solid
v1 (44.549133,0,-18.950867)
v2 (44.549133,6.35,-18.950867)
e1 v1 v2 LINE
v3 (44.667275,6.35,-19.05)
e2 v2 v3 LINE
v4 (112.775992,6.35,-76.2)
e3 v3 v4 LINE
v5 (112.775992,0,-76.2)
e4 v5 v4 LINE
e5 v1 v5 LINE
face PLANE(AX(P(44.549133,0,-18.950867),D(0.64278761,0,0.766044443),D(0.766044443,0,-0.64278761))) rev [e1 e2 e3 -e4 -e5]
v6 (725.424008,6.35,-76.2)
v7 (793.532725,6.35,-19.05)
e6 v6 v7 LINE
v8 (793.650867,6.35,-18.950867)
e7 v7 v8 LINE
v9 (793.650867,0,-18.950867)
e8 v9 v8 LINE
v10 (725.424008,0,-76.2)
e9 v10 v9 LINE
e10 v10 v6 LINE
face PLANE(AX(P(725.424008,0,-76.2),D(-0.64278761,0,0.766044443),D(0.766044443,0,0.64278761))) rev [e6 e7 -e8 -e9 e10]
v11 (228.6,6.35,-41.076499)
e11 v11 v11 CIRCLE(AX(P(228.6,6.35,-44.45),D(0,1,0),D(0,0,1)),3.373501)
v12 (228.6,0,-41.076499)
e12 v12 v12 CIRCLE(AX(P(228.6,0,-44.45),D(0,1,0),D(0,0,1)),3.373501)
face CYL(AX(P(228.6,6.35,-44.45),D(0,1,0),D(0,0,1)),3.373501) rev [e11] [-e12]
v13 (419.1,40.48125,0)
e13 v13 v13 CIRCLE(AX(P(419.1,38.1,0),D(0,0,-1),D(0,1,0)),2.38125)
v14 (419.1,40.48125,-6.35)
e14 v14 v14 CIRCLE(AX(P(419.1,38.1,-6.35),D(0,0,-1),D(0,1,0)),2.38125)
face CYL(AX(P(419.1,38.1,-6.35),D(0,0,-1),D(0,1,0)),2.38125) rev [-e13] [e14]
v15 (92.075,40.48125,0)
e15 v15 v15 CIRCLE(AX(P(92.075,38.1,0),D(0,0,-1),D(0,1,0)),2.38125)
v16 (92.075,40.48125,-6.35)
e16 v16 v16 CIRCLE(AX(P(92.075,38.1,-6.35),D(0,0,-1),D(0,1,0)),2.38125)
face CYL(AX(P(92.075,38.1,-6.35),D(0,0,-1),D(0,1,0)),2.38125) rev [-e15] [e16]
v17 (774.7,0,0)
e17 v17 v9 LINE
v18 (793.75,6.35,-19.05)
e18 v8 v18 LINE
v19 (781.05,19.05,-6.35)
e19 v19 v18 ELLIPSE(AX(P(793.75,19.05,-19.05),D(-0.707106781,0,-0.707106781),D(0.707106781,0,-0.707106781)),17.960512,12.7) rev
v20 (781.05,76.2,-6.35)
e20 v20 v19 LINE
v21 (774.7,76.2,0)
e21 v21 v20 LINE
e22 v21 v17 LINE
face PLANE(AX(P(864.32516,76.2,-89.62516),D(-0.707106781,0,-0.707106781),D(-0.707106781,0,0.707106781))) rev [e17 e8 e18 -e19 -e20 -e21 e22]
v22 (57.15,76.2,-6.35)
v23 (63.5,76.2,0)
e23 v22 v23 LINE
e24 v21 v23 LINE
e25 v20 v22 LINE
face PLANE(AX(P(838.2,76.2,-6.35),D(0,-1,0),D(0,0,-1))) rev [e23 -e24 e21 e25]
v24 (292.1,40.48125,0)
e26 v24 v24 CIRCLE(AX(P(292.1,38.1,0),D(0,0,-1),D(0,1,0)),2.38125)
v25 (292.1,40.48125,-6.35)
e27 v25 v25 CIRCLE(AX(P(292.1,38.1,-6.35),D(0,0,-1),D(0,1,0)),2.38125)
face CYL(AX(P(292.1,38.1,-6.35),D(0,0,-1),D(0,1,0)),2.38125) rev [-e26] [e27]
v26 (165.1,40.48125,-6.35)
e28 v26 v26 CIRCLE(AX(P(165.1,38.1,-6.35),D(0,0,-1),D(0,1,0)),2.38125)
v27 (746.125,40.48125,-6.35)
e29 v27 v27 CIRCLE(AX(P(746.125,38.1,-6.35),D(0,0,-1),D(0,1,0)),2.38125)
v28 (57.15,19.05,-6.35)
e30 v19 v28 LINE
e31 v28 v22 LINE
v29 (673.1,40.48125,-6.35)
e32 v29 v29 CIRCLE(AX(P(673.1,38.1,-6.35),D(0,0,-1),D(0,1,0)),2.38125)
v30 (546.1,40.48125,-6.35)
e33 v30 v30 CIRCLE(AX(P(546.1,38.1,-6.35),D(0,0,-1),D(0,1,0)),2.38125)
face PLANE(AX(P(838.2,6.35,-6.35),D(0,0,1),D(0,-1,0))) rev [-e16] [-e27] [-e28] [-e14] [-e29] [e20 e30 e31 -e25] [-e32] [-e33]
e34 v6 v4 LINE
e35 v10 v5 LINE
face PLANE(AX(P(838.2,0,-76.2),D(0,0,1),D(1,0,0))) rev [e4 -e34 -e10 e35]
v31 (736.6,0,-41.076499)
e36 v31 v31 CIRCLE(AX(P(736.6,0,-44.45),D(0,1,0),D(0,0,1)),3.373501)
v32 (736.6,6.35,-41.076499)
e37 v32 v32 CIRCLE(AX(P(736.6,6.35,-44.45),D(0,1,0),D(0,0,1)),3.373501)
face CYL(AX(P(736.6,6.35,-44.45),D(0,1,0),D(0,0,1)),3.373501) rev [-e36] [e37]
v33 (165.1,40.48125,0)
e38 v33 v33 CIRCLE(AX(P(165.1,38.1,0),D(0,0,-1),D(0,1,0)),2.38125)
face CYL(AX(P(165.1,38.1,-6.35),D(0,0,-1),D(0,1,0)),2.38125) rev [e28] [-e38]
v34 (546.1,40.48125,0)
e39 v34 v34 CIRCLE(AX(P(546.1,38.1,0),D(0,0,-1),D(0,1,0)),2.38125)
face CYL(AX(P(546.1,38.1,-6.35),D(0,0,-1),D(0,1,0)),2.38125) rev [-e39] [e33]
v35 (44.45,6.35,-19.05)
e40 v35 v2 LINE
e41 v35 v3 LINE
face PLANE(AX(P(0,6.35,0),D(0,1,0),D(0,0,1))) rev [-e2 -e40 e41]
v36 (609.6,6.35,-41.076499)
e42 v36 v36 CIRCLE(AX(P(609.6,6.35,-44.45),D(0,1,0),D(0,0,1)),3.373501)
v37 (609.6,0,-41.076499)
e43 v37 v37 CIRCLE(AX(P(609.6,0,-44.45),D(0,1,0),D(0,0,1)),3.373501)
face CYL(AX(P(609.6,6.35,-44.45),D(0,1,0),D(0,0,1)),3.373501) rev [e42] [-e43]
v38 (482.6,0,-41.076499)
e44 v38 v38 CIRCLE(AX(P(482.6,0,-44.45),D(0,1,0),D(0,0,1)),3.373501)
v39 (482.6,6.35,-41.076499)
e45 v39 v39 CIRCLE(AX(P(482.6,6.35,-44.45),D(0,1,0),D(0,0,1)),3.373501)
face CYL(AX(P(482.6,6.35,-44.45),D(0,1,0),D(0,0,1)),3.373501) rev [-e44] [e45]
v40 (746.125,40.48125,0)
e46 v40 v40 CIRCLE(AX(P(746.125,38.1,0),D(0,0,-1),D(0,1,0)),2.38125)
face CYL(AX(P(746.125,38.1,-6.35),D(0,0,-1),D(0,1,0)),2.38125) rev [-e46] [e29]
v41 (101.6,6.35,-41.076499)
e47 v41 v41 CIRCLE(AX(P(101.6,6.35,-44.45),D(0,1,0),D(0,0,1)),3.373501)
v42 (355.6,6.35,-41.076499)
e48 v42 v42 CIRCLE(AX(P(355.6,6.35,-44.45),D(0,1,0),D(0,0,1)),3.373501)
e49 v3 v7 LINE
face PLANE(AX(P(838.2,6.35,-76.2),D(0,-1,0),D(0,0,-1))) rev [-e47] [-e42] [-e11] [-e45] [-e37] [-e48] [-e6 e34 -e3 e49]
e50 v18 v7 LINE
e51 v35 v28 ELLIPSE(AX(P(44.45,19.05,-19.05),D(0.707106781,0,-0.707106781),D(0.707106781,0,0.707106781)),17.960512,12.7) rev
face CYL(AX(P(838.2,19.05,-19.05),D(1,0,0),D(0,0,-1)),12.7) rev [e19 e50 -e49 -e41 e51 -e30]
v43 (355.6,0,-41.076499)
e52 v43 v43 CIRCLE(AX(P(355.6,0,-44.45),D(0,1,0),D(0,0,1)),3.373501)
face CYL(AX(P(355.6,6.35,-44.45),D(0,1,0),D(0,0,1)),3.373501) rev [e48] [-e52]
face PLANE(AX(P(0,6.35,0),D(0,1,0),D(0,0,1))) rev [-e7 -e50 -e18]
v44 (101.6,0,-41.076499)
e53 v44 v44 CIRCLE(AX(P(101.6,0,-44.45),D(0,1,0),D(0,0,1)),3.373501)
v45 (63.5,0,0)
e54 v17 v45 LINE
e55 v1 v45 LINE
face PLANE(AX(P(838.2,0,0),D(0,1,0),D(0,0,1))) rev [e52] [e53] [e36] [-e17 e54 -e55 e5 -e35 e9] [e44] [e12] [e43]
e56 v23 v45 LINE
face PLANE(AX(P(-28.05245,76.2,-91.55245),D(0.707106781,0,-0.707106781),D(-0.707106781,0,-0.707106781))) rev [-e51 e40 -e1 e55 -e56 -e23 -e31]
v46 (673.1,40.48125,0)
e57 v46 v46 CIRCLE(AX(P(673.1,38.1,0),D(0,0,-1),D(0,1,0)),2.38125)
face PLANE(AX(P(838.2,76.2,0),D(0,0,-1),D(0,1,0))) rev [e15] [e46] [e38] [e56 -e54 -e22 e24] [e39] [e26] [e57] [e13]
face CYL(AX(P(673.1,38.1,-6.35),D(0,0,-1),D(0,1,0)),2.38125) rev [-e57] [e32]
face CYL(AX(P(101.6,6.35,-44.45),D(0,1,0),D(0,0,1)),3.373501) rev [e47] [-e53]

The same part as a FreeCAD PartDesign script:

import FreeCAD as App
import Part
import Sketcher
from FreeCAD import Vector
Q = App.Units.Quantity


def edges_at(feature, points):
    """Names of the edges that pass closest to the given points."""
    edges = feature.Shape.Edges
    near = lambda p: min(range(len(edges)), key=lambda i: edges[i].distToShape(Part.Vertex(*p))[0])
    return sorted({f"Edge{near(p) + 1}" for p in points})

doc = App.newDocument("Part")
body = doc.addObject("PartDesign::Body", "Body")

sketch1 = body.newObject("Sketcher::SketchObject", "Sketch")
sketch1.AttachmentSupport = (doc.getObject("YZ_Plane"), [""])
sketch1.MapMode = "FlatFace"
sketch1.addGeometry([
    Part.LineSegment(Vector(0, 0, 0), Vector(0, -76.2, 0)),
    Part.LineSegment(Vector(0, -76.2, 0), Vector(6.35, -76.2, 0)),
    Part.LineSegment(Vector(6.35, -76.2, 0), Vector(6.35, -6.35, 0)),
    Part.LineSegment(Vector(6.35, -6.35, 0), Vector(76.2, -6.35, 0)),
    Part.LineSegment(Vector(76.2, -6.35, 0), Vector(76.2, 0, 0)),
    Part.LineSegment(Vector(76.2, 0, 0), Vector(0, 0, 0)),
], False)
sketch1.addConstraint([
    Sketcher.Constraint("Coincident", 0, 2, 1, 1),
    Sketcher.Constraint("Coincident", 1, 2, 2, 1),
    Sketcher.Constraint("Coincident", 2, 2, 3, 1),
    Sketcher.Constraint("Coincident", 3, 2, 4, 1),
    Sketcher.Constraint("Coincident", 4, 2, 5, 1),
    Sketcher.Constraint("Coincident", 5, 2, 0, 1),
    Sketcher.Constraint("Vertical", 0),
    Sketcher.Constraint("Horizontal", 1),
    Sketcher.Constraint("Vertical", 2),
    Sketcher.Constraint("Horizontal", 3),
    Sketcher.Constraint("Vertical", 4),
    Sketcher.Constraint("Horizontal", 5),
    Sketcher.Constraint("Coincident", 5, 2, -1, 1),
    Sketcher.Constraint("Equal", 5, 0),
    Sketcher.Constraint("Equal", 3, 2),
    Sketcher.Constraint("DistanceX", 5, 2, 5, 1, Q("3 in")),
    Sketcher.Constraint("DistanceX", 1, 1, 1, 2, Q("0.25 in")),
])
pad1 = body.newObject("PartDesign::Pad", "Pad")
pad1.Profile = sketch1
pad1.Length = Q("33 in")
doc.recompute()

fillet = body.newObject("PartDesign::Fillet", "Fillet")
fillet.Base = (pad1, edges_at(pad1, [(419.1, 6.35, -6.35)]))
fillet.Radius = Q("0.5 in")

sketch2 = body.newObject("Sketcher::SketchObject", "Sketch001")
sketch2.AttachmentSupport = (doc.getObject("XZ_Plane"), [""])
sketch2.MapMode = "FlatFace"
sketch2.AttachmentOffset = App.Placement(Vector(0, 0, -0.25 * 25.4), App.Rotation())
sketch2.addGeometry(Part.Circle(Vector(101.6, -44.45, 0), Vector(0, 0, 1), 3.373501), False)
sketch2.addConstraint([
    Sketcher.Constraint("DistanceX", -1, 1, 0, 3, Q("4 in")),
    Sketcher.Constraint("DistanceY", 0, 3, -1, 1, Q("1.75 in")),
    Sketcher.Constraint("Diameter", 0, Q("6.747002 mm")),
])
doc.recompute()
hole = body.newObject("PartDesign::Hole", "Hole")
hole.Profile = sketch2
hole.ThreadType = "None"
hole.Diameter = 6.747002
hole.DepthType = "ThroughAll"
hole.Reversed = True
doc.recompute()

linearpattern = body.newObject("PartDesign::LinearPattern", "LinearPattern")
linearpattern.Originals = [hole]
linearpattern.Direction = (doc.getObject("X_Axis"), [""])
linearpattern.Mode = "offset"
linearpattern.Offset = Q("5 in")
linearpattern.Occurrences = 6
body.Tip = linearpattern

sketch3 = body.newObject("Sketcher::SketchObject", "Sketch002")
sketch3.AttachmentSupport = (doc.getObject("XZ_Plane"), [""])
sketch3.MapMode = "FlatFace"
sketch3.addGeometry([
    Part.LineSegment(Vector(63.5, 0, 0), Vector(-28.05245, 0, 0)),
    Part.LineSegment(Vector(-28.05245, 0, 0), Vector(-28.05245, -91.55245, 0)),
    Part.LineSegment(Vector(-28.05245, -91.55245, 0), Vector(63.5, 0, 0)),
], False)
sketch3.addConstraint([
    Sketcher.Constraint("Coincident", 0, 2, 1, 1),
    Sketcher.Constraint("Coincident", 1, 2, 2, 1),
    Sketcher.Constraint("Coincident", 2, 2, 0, 1),
    Sketcher.Constraint("Horizontal", 0),
    Sketcher.Constraint("Vertical", 1),
    Sketcher.Constraint("PointOnObject", 0, 2, -1),
    Sketcher.Constraint("Equal", 0, 1),
    Sketcher.Constraint("DistanceX", -1, 1, 2, 2, Q("2.5 in")),
    Sketcher.Constraint("DistanceX", 0, 2, 0, 1, Q("91.55245 mm")),
])
pocket1 = body.newObject("PartDesign::Pocket", "Pocket")
pocket1.Profile = sketch3
pocket1.Type = "ThroughAll"

sketch4 = body.newObject("Sketcher::SketchObject", "Sketch003")
sketch4.AttachmentSupport = (doc.getObject("XZ_Plane"), [""])
sketch4.MapMode = "FlatFace"
sketch4.addGeometry([
    Part.LineSegment(Vector(864.32516, 0, 0), Vector(774.7, 0, 0)),
    Part.LineSegment(Vector(774.7, 0, 0), Vector(864.32516, -89.62516, 0)),
    Part.LineSegment(Vector(864.32516, -89.62516, 0), Vector(864.32516, 0, 0)),
], False)
sketch4.addConstraint([
    Sketcher.Constraint("Coincident", 0, 2, 1, 1),
    Sketcher.Constraint("Coincident", 1, 2, 2, 1),
    Sketcher.Constraint("Coincident", 2, 2, 0, 1),
    Sketcher.Constraint("Horizontal", 0),
    Sketcher.Constraint("Vertical", 2),
    Sketcher.Constraint("PointOnObject", 0, 2, -1),
    Sketcher.Constraint("Equal", 0, 2),
    Sketcher.Constraint("DistanceX", -1, 1, 0, 2, Q("30.5 in")),
    Sketcher.Constraint("DistanceX", 0, 2, 0, 1, Q("89.62516 mm")),
])
pocket2 = body.newObject("PartDesign::Pocket", "Pocket001")
pocket2.Profile = sketch4
pocket2.Type = "ThroughAll"

sketch5 = body.newObject("Sketcher::SketchObject", "Sketch004")
sketch5.AttachmentSupport = (doc.getObject("XZ_Plane"), [""])
sketch5.MapMode = "FlatFace"
sketch5.AttachmentOffset = App.Placement(Vector(0, 0, -0.25 * 25.4), App.Rotation())
sketch5.addGeometry([
    Part.LineSegment(Vector(44.549133, -18.950867, 0), Vector(112.775992, -76.2, 0)),
    Part.LineSegment(Vector(112.775992, -76.2, 0), Vector(-12.7, -76.2, 0)),
    Part.LineSegment(Vector(-12.7, -76.2, 0), Vector(44.549133, -18.950867, 0)),
], False)
sketch5.addConstraint([
    Sketcher.Constraint("Coincident", 0, 2, 1, 1),
    Sketcher.Constraint("Coincident", 1, 2, 2, 1),
    Sketcher.Constraint("Coincident", 2, 2, 0, 1),
    Sketcher.Constraint("Horizontal", 1),
    Sketcher.Constraint("DistanceY", 0, 2, -1, 1, Q("3 in")),
    Sketcher.Constraint("Angle", 0, Q("-40 deg")),
    Sketcher.Constraint("Angle", 2, Q("45 deg")),
    Sketcher.Constraint("DistanceX", 1, 2, -1, 1, Q("0.5 in")),
    Sketcher.Constraint("Distance", 2, Q("3.1875 in")),
])
pocket3 = body.newObject("PartDesign::Pocket", "Pocket002")
pocket3.Profile = sketch5
pocket3.Type = "ThroughAll"
pocket3.Reversed = True

sketch6 = body.newObject("Sketcher::SketchObject", "Sketch005")
sketch6.AttachmentSupport = (doc.getObject("XZ_Plane"), [""])
sketch6.MapMode = "FlatFace"
sketch6.AttachmentOffset = App.Placement(Vector(0, 0, -0.25 * 25.4), App.Rotation())
sketch6.addGeometry([
    Part.LineSegment(Vector(793.650867, -18.950867, 0), Vector(850.9, -76.2, 0)),
    Part.LineSegment(Vector(850.9, -76.2, 0), Vector(725.424008, -76.2, 0)),
    Part.LineSegment(Vector(725.424008, -76.2, 0), Vector(793.650867, -18.950867, 0)),
], False)
sketch6.addConstraint([
    Sketcher.Constraint("Coincident", 0, 2, 1, 1),
    Sketcher.Constraint("Coincident", 1, 2, 2, 1),
    Sketcher.Constraint("Coincident", 2, 2, 0, 1),
    Sketcher.Constraint("Horizontal", 1),
    Sketcher.Constraint("DistanceY", 0, 2, -1, 1, Q("3 in")),
    Sketcher.Constraint("Angle", 0, Q("-45 deg")),
    Sketcher.Constraint("Angle", 2, Q("40 deg")),
    Sketcher.Constraint("DistanceX", -1, 1, 0, 2, Q("33.5 in")),
    Sketcher.Constraint("Distance", 0, Q("3.1875 in")),
])
pocket4 = body.newObject("PartDesign::Pocket", "Pocket003")
pocket4.Profile = sketch6
pocket4.Type = "ThroughAll"
pocket4.Reversed = True

sketch7 = body.newObject("Sketcher::SketchObject", "Sketch006")
sketch7.AttachmentSupport = (doc.getObject("XY_Plane"), [""])
sketch7.MapMode = "FlatFace"
sketch7.AttachmentOffset = App.Placement(Vector(0, 0, -0.25 * 25.4), App.Rotation())
sketch7.addGeometry(Part.Circle(Vector(419.1, 38.1, 0), Vector(0, 0, 1), 2.38125), False)
sketch7.addConstraint([
    Sketcher.Constraint("Diameter", 0, Q("0.1875 in")),
    Sketcher.Constraint("DistanceX", -1, 1, 0, 3, Q("16.5 in")),
    Sketcher.Constraint("DistanceY", -1, 1, 0, 3, Q("1.5 in")),
])
doc.recompute()
hole2 = body.newObject("PartDesign::Hole", "Hole001")
hole2.Profile = sketch7
hole2.ThreadType = "None"
hole2.Diameter = Q("0.1875 in")
hole2.DepthType = "ThroughAll"
hole2.Reversed = True
doc.recompute()

linearpattern2 = body.newObject("PartDesign::LinearPattern", "LinearPattern001")
linearpattern2.Originals = [hole2]
linearpattern2.Direction = (doc.getObject("X_Axis"), [""])
linearpattern2.Mode = "offset"
linearpattern2.Offset = Q("5 in")
linearpattern2.Occurrences = 3
linearpattern2.Reversed = True
body.Tip = linearpattern2
doc.recompute()

linearpattern3 = body.newObject("PartDesign::LinearPattern", "LinearPattern002")
linearpattern3.Originals = [hole2]
linearpattern3.Direction = (doc.getObject("X_Axis"), [""])
linearpattern3.Mode = "offset"
linearpattern3.Offset = Q("5 in")
linearpattern3.Occurrences = 3
body.Tip = linearpattern3

sketch8 = body.newObject("Sketcher::SketchObject", "Sketch007")
sketch8.AttachmentSupport = (doc.getObject("XY_Plane"), [""])
sketch8.MapMode = "FlatFace"
sketch8.AttachmentOffset = App.Placement(Vector(0, 0, -0.25 * 25.4), App.Rotation())
sketch8.addGeometry([
    Part.Circle(Vector(746.125, 38.1, 0), Vector(0, 0, 1), 2.38125),
    Part.Circle(Vector(92.075, 38.1, 0), Vector(0, 0, 1), 2.38125),
], False)
sketch8.addConstraint([
    Sketcher.Constraint("Equal", 0, 1),
    Sketcher.Constraint("Horizontal", 0, 3, 1, 3),
    Sketcher.Constraint("Diameter", 0, Q("0.1875 in")),
    Sketcher.Constraint("DistanceY", -1, 1, 0, 3, Q("1.5 in")),
    Sketcher.Constraint("DistanceX", 1, 3, 0, 3, Q("25.75 in")),
    Sketcher.Constraint("DistanceX", -1, 1, 0, 3, Q("29.375 in")),
])
doc.recompute()
hole3 = body.newObject("PartDesign::Hole", "Hole002")
hole3.Profile = sketch8
hole3.ThreadType = "None"
hole3.Diameter = Q("0.1875 in")
hole3.DepthType = "ThroughAll"
hole3.Reversed = True

doc.recompute()
